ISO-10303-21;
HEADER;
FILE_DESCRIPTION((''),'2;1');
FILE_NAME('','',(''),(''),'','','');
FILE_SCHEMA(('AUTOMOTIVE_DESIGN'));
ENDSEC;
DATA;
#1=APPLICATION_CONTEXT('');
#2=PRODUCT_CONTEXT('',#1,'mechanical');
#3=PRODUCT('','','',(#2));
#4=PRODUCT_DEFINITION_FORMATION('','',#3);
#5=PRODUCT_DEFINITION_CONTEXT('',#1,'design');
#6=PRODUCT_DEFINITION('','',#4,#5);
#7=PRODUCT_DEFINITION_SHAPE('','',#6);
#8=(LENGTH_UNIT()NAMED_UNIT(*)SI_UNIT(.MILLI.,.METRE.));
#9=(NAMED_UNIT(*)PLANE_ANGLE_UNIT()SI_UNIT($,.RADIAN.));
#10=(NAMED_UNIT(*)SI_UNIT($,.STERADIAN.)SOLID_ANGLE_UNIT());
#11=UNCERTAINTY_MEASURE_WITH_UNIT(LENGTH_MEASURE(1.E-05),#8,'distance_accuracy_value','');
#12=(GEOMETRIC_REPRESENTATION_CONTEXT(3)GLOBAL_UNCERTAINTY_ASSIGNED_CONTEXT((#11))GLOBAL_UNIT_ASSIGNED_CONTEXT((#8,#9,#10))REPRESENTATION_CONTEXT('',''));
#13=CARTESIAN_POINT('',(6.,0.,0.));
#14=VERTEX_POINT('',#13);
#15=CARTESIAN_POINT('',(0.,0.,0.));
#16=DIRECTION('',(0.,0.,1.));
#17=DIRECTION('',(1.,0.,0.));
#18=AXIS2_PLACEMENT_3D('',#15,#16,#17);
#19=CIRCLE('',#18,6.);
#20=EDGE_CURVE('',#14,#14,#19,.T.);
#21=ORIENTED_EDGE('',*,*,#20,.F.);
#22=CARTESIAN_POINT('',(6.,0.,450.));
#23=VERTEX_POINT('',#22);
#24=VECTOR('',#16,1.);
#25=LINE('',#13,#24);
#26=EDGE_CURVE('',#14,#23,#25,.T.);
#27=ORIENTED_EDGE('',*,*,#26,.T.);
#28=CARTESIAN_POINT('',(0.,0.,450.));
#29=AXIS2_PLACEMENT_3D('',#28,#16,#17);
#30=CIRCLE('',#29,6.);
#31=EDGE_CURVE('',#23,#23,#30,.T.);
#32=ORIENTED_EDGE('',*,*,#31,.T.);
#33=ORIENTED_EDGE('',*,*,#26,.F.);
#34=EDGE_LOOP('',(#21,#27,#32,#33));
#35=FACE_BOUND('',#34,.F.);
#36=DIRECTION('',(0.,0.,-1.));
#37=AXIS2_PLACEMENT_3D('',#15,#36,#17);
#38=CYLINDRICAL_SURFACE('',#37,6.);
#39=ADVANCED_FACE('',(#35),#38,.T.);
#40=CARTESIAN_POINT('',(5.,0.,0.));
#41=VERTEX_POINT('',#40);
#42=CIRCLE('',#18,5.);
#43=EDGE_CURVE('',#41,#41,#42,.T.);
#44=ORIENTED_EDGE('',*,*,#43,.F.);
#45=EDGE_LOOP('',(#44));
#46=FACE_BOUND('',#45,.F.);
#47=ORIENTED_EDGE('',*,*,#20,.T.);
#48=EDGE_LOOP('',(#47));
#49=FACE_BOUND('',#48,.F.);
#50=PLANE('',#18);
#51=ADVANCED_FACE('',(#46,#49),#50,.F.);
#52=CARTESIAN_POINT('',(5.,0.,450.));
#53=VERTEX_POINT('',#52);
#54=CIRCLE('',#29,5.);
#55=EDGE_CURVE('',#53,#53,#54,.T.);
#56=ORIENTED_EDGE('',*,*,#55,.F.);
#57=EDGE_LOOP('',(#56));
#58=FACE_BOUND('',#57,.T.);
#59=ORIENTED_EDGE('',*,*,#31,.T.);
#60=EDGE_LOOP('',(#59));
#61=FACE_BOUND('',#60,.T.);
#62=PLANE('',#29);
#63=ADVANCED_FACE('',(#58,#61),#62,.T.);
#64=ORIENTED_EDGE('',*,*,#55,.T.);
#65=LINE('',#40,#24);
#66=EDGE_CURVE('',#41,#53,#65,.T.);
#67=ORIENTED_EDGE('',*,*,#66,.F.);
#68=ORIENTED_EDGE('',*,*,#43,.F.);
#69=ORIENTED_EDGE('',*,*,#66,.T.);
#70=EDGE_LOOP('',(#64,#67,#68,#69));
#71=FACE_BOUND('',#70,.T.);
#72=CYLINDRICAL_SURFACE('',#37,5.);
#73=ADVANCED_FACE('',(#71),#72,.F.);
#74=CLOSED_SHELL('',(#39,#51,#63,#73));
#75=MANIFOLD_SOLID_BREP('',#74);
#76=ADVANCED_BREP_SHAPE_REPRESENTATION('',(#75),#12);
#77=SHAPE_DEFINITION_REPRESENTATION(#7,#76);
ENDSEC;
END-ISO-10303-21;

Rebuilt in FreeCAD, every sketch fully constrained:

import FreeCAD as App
import Part
import Sketcher
Q = App.Units.Quantity

doc = App.newDocument("Part")
body = doc.addObject("PartDesign::Body", "Body")

# Sketch on XY plane
sketch1 = body.newObject("Sketcher::SketchObject", "Sketch")
sketch1.AttachmentSupport = (doc.getObject("XY_Plane"), [""])
sketch1.MapMode = "FlatFace"
sketch1.addGeometry([
    Part.Circle(App.Vector(0, 0, 0), App.Vector(0, 0, 1), 6),
    Part.Circle(App.Vector(0, 0, 0), App.Vector(0, 0, 1), 5),
], False)
sketch1.addConstraint([
    Sketcher.Constraint("Coincident", 0, 3, -1, 1),
    Sketcher.Constraint("Coincident", 1, 3, -1, 1),
    Sketcher.Constraint("Diameter", 0, Q("12 mm")),
    Sketcher.Constraint("Diameter", 1, Q("10 mm")),
])
pad1 = body.newObject("PartDesign::Pad", "Pad")
pad1.Profile = sketch1
pad1.Length = 450

doc.recompute()
